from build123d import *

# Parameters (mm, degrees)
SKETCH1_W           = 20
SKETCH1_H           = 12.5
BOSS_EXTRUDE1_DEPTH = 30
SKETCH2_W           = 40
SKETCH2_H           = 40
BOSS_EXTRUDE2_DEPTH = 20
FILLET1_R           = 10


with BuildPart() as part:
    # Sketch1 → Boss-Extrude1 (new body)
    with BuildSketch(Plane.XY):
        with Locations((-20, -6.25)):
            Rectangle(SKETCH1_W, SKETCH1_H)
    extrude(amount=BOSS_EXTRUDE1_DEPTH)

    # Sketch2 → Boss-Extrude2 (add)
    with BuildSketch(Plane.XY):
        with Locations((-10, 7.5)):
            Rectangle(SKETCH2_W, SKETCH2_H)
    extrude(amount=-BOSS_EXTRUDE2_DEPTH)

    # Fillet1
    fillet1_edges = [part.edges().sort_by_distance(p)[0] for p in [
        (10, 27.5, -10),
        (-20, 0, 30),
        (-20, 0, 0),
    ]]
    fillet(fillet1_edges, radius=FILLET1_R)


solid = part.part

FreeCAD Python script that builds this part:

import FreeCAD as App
import Part
import Sketcher
from FreeCAD import Vector
Q = App.Units.Quantity


def edges_at(feature, points):
    """Names of the edges that pass closest to the given points."""
    edges = feature.Shape.Edges
    near = lambda p: min(range(len(edges)), key=lambda i: edges[i].distToShape(Part.Vertex(*p))[0])
    return sorted({f"Edge{near(p) + 1}" for p in points})


def add_polygon(sketch, points):
    """Adds a closed chain of lines whose ends are joined by coincident constraints."""
    first, n = sketch.GeometryCount, len(points)
    for a, b in zip(points, points[1:] + points[:1]):
        sketch.addGeometry(Part.LineSegment(App.Vector(*a, 0), App.Vector(*b, 0)), False)
    for i in range(n):
        sketch.addConstraint(Sketcher.Constraint("Coincident", first + i, 2, first + (i + 1) % n, 1))

doc = App.newDocument("Part")
body = doc.addObject("PartDesign::Body", "Body")

sketch1 = doc.addObject("Sketcher::SketchObject", "Sketch")
body.addObject(sketch1)
sketch1.AttachmentSupport = (doc.XY_Plane, [""])
sketch1.MapMode = "FlatFace"
add_polygon(sketch1, [(-30, 0), (-30, -12), (-10, -12), (-10, 0)])
sketch1.addConstraint(Sketcher.Constraint("Vertical", 0))
sketch1.addConstraint(Sketcher.Constraint("Horizontal", 1))
sketch1.addConstraint(Sketcher.Constraint("Vertical", 2))
sketch1.addConstraint(Sketcher.Constraint("Horizontal", 3))
sketch1.addConstraint(Sketcher.Constraint("PointOnObject", 2, 2, -1))
sketch1.addConstraint(Sketcher.Constraint("DistanceX", 1, 1, 1, 2, Q("20 mm")))
sketch1.addConstraint(Sketcher.Constraint("DistanceY", 0, 2, 0, 1, Q("12.5 mm")))
sketch1.addConstraint(Sketcher.Constraint("DistanceX", 0, 2, -1, 1, Q("30 mm")))
pad1 = doc.addObject("PartDesign::Pad", "Pad")
body.addObject(pad1)
pad1.Profile = sketch1
pad1.Length = 30

sketch2 = doc.addObject("Sketcher::SketchObject", "Sketch001")
body.addObject(sketch2)
sketch2.AttachmentSupport = (doc.XY_Plane, [""])
sketch2.MapMode = "FlatFace"
add_polygon(sketch2, [(-30, 28), (-30, -12), (10, -12), (10, 28)])
sketch2.addConstraint(Sketcher.Constraint("Vertical", 0))
sketch2.addConstraint(Sketcher.Constraint("Horizontal", 1))
sketch2.addConstraint(Sketcher.Constraint("Vertical", 2))
sketch2.addConstraint(Sketcher.Constraint("Horizontal", 3))
sketch2.addConstraint(Sketcher.Constraint("Equal", 3, 0))
sketch2.addConstraint(Sketcher.Constraint("DistanceX", 1, 1, 1, 2, Q("40 mm")))
sketch2.addConstraint(Sketcher.Constraint("DistanceX", 0, 2, -1, 1, Q("30 mm")))
sketch2.addConstraint(Sketcher.Constraint("DistanceY", 0, 2, -1, 1, Q("12.5 mm")))
pad2 = doc.addObject("PartDesign::Pad", "Pad001")
body.addObject(pad2)
pad2.Profile = sketch2
pad2.Length = 20
pad2.Reversed = True
doc.recompute()

fillet = doc.addObject("PartDesign::Fillet", "Fillet")
body.addObject(fillet)
fillet.Base = (pad2, edges_at(pad2, [(10, 27.5, -10), (-20, 0, 30), (-20, 0, 0)]))
fillet.Radius = 10

doc.recompute()
